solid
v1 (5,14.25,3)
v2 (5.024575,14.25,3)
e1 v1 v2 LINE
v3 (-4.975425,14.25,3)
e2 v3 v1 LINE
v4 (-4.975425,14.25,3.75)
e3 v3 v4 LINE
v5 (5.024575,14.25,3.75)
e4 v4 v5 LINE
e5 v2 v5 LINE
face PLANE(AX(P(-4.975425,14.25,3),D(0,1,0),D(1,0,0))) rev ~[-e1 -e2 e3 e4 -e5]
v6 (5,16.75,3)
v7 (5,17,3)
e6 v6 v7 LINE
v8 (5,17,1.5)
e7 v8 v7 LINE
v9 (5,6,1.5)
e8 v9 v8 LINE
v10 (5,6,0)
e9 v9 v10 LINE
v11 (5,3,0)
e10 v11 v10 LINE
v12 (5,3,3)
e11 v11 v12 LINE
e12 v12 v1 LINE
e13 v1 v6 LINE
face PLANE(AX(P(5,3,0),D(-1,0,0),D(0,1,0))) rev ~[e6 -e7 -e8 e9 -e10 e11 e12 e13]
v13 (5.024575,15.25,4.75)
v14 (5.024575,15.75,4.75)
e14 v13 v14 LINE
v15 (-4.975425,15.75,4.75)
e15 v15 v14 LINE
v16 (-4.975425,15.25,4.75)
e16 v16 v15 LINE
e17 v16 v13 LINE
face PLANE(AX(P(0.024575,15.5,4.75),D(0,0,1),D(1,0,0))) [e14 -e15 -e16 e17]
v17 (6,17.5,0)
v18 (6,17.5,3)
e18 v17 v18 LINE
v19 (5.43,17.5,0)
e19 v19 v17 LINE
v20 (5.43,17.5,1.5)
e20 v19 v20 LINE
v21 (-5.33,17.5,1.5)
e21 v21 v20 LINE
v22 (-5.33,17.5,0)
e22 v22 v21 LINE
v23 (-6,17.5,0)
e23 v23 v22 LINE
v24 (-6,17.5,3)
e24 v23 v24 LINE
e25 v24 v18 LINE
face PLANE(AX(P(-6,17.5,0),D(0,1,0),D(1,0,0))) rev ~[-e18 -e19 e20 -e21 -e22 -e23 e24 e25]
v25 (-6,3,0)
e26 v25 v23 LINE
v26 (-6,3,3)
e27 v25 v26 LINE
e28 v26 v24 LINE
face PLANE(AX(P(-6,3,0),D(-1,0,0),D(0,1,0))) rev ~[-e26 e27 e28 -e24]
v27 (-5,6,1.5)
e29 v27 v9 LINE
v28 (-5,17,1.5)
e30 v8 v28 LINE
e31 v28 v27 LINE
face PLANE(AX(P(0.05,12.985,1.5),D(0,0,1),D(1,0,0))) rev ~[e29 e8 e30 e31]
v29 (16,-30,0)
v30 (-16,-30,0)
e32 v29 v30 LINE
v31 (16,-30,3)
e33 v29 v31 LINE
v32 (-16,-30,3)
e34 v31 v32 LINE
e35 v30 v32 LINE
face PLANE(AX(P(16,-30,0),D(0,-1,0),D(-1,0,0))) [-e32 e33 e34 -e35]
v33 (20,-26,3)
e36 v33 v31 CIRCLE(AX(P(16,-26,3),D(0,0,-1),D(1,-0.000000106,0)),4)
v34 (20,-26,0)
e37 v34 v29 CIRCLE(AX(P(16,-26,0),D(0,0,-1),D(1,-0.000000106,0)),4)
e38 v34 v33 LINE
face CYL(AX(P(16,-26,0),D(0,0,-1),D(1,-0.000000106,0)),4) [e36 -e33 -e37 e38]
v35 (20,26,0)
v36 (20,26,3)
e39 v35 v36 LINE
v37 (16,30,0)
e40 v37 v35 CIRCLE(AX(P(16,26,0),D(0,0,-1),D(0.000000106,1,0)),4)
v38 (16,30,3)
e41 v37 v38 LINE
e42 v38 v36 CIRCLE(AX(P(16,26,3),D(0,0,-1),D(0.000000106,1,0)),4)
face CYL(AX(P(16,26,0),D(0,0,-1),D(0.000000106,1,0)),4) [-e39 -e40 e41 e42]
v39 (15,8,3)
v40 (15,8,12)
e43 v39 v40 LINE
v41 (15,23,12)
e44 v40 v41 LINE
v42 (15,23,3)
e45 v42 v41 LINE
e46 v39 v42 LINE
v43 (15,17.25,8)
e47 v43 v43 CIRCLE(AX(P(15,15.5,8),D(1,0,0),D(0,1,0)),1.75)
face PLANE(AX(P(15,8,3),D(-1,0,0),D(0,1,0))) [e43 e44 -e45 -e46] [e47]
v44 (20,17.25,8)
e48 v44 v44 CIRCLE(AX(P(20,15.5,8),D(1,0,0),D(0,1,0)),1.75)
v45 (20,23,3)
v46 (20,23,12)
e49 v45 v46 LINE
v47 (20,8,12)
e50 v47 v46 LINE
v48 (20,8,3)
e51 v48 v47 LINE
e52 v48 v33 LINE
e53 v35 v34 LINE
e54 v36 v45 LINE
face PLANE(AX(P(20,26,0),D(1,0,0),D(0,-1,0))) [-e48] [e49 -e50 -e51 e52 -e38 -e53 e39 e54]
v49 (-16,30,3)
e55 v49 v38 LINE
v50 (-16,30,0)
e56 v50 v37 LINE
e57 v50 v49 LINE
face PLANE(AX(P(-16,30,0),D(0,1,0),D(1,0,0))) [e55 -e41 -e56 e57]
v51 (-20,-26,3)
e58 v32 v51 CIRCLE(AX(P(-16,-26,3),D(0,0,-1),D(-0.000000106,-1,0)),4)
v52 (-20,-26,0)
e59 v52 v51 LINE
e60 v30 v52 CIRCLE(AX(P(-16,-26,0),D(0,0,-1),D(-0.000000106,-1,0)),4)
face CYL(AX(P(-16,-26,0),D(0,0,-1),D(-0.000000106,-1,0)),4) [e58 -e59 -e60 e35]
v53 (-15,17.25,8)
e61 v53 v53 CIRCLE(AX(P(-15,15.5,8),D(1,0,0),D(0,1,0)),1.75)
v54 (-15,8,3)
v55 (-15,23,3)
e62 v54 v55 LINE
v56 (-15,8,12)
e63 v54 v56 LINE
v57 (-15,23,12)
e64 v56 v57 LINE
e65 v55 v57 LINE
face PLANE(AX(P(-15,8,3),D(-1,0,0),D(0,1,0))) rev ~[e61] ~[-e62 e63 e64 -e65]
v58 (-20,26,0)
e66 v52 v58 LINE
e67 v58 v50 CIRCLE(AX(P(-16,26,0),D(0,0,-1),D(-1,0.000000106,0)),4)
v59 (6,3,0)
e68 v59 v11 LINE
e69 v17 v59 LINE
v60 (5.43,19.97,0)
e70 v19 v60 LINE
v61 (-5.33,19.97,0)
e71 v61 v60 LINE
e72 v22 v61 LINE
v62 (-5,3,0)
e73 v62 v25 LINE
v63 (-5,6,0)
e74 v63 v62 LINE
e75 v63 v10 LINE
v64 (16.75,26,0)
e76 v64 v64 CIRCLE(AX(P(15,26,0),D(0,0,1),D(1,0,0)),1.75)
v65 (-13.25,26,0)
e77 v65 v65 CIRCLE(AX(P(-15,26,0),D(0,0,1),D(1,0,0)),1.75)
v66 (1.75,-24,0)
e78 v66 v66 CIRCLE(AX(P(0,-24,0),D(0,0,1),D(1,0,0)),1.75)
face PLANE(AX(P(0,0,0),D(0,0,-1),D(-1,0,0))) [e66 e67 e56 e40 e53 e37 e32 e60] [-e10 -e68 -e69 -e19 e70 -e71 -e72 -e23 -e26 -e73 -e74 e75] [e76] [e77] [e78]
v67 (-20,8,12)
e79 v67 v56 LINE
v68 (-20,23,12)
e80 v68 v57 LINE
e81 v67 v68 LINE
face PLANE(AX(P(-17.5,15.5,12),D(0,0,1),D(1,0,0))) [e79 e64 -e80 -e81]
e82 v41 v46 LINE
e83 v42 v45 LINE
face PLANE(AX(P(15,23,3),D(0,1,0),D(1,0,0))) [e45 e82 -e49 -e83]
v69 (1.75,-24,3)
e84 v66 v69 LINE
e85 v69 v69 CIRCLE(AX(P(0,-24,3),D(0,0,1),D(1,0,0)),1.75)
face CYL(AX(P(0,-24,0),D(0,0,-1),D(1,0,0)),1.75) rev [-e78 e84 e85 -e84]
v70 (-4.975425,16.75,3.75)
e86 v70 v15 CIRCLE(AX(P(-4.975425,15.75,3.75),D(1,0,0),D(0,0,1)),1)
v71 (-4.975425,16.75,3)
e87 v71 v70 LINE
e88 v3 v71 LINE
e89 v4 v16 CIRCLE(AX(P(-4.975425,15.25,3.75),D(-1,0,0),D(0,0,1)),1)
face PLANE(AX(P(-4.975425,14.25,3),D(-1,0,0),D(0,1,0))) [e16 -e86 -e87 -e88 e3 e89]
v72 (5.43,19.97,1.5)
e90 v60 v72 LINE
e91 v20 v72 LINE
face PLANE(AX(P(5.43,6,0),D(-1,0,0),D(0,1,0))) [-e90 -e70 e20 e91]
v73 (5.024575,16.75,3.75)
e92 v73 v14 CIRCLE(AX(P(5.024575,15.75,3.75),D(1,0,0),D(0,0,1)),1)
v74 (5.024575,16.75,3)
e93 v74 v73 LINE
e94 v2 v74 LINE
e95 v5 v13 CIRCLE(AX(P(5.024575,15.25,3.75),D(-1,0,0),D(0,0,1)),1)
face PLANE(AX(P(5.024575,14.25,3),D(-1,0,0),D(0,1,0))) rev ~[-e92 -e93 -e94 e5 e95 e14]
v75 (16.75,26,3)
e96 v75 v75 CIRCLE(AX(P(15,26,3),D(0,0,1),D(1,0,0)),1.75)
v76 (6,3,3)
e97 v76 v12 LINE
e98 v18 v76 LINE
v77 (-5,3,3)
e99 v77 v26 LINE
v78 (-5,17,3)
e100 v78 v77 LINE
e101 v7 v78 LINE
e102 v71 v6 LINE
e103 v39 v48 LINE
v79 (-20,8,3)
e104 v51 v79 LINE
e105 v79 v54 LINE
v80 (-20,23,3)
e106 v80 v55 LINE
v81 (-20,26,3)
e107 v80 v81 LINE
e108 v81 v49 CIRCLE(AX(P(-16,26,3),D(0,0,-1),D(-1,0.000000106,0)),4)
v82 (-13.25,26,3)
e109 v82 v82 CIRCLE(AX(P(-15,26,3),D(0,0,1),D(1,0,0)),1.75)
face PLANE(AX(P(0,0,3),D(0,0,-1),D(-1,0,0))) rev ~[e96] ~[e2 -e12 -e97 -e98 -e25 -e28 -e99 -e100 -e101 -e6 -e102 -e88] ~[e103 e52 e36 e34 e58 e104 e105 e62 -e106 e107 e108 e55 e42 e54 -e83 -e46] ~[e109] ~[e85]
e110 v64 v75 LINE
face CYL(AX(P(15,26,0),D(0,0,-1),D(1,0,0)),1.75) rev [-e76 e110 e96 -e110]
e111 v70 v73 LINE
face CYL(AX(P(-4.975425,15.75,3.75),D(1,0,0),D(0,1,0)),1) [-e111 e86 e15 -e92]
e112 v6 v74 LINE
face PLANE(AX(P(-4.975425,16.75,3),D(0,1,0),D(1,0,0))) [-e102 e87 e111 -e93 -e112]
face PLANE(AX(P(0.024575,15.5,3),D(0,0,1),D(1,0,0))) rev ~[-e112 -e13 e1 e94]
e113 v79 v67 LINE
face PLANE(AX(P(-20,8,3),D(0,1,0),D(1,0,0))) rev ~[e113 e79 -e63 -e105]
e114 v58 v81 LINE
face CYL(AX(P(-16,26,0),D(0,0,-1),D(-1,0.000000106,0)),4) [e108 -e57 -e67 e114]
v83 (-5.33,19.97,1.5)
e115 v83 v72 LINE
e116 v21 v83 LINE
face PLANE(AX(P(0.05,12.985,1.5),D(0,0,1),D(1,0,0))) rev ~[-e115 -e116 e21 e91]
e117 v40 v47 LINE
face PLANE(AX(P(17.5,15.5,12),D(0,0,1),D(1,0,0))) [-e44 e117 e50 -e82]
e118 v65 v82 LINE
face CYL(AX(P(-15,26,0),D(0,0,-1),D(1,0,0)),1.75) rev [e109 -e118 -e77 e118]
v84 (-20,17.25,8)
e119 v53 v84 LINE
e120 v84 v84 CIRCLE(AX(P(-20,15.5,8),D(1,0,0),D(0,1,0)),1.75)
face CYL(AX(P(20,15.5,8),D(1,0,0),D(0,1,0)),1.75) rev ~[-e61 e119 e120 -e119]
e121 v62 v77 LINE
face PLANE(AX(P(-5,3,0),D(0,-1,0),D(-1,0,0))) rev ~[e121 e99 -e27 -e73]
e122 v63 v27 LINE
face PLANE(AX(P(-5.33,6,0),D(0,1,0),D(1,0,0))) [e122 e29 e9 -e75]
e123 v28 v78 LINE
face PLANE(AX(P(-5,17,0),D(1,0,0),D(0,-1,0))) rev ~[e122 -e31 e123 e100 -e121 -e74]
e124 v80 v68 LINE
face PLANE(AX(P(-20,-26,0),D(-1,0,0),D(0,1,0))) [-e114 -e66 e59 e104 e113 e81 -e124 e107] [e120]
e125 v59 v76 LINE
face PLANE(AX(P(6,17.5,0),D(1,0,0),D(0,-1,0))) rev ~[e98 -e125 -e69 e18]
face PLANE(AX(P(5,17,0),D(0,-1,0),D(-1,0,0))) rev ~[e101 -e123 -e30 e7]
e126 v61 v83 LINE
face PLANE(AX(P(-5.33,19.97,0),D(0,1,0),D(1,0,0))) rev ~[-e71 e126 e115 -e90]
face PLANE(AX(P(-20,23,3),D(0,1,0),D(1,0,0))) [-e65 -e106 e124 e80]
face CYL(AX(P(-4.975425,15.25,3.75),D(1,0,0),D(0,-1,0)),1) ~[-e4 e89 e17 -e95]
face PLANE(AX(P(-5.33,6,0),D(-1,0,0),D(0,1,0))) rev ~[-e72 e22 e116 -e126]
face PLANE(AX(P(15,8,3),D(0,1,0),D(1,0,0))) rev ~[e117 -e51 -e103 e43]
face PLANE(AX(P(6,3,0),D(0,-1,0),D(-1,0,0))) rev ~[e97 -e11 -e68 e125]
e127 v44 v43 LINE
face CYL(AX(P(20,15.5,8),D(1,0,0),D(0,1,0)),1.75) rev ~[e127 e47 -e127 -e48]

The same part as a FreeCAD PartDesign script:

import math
import FreeCAD as App
import Part
import Sketcher


def edges_at(feature, points):
    """Names of the edges that pass closest to the given points."""
    edges = feature.Shape.Edges
    near = lambda p: min(range(len(edges)), key=lambda i: edges[i].distToShape(Part.Vertex(*p))[0])
    return sorted({f"Edge{near(p) + 1}" for p in points})


def add_polygon(sketch, points):
    """Adds a closed chain of lines whose ends are joined by coincident constraints."""
    first, n = sketch.GeometryCount, len(points)
    for a, b in zip(points, points[1:] + points[:1]):
        sketch.addGeometry(Part.LineSegment(App.Vector(*a, 0), App.Vector(*b, 0)), False)
    for i in range(n):
        sketch.addConstraint(Sketcher.Constraint("Coincident", first + i, 2, first + (i + 1) % n, 1))

doc = App.newDocument("Part")
params = doc.addObject("Spreadsheet::Sheet", "Params")
for row, (alias, value) in enumerate([
    ("sketch1_radius", "4 mm"),
    ("sketch1_diameter", "3.5 mm"),
    ("sketch1_width", "32 mm"),
    ("sketch1_width2", "1 mm"),
    ("sketch1_width3", "10 mm"),
    ("pad1_length", "3 mm"),
    ("sketch2_width", "10.76 mm"),
    ("sketch2_height", "13.97 mm"),
    ("pocket1_length", "1.5 mm"),
    ("sketch3_width", "5 mm"),
    ("sketch3_height", "15 mm"),
    ("pad2_length", "9 mm"),
    ("sketch4_diameter", "3.5 mm"),
    ("pocket2_length", "50 mm"),
    ("sketch5_width", "10 mm"),
    ("sketch5_height", "2.5 mm"),
    ("pad3_length", "1.75 mm"),
    ("fillet_radius", "1 mm"),
], start=1):
    params.set(f"A{row}", alias)
    params.set(f"B{row}", "=" + value)
    params.setAlias(f"B{row}", alias)

body = doc.addObject("PartDesign::Body", "Body")

sketch1 = doc.addObject("Sketcher::SketchObject", "Sketch")
body.addObject(sketch1)
sketch1.AttachmentSupport = (doc.XY_Plane, [""])
sketch1.MapMode = "FlatFace"
sketch1.addGeometry(Part.LineSegment(App.Vector(-20, 26, 0), App.Vector(-20, -26, 0)), False)
sketch1.addGeometry(Part.ArcOfCircle(Part.Circle(App.Vector(-16, -26, 0), App.Vector(0, 0, 1), 4), math.radians(-180), math.radians(-90)), False)
sketch1.addGeometry(Part.LineSegment(App.Vector(-16, -30, 0), App.Vector(16, -30, 0)), False)
sketch1.addGeometry(Part.ArcOfCircle(Part.Circle(App.Vector(16, -26, 0), App.Vector(0, 0, 1), 4), math.radians(-90), math.radians(0)), False)
sketch1.addGeometry(Part.LineSegment(App.Vector(20, -26, 0), App.Vector(20, 26, 0)), False)
sketch1.addGeometry(Part.ArcOfCircle(Part.Circle(App.Vector(16, 26, 0), App.Vector(0, 0, 1), 4), math.radians(0), math.radians(90)), False)
sketch1.addGeometry(Part.LineSegment(App.Vector(16, 30, 0), App.Vector(-16, 30, 0)), False)
sketch1.addGeometry(Part.ArcOfCircle(Part.Circle(App.Vector(-16, 26, 0), App.Vector(0, 0, 1), 4), math.radians(90), math.radians(180)), False)
sketch1.addGeometry(Part.Circle(App.Vector(0, -24, 0), App.Vector(0, 0, 1), 1.8), False)
sketch1.addGeometry(Part.Circle(App.Vector(15, 26, 0), App.Vector(0, 0, 1), 1.8), False)
add_polygon(sketch1, [(6, 3), (5, 3), (5, 17), (-5, 17), (-5, 3), (-6, 3), (-6, 17.5), (6, 17.5)])
sketch1.addGeometry(Part.Circle(App.Vector(-15, 26, 0), App.Vector(0, 0, 1), 1.8), False)
sketch1.addConstraint([
    Sketcher.Constraint("Tangent", 0, 2, 1, 1),
    Sketcher.Constraint("Tangent", 1, 2, 2, 1),
    Sketcher.Constraint("Tangent", 2, 2, 3, 1),
    Sketcher.Constraint("Tangent", 3, 2, 4, 1),
    Sketcher.Constraint("Tangent", 4, 2, 5, 1),
    Sketcher.Constraint("Tangent", 5, 2, 6, 1),
    Sketcher.Constraint("Tangent", 6, 2, 7, 1),
    Sketcher.Constraint("Tangent", 7, 2, 0, 1),
    Sketcher.Constraint("Vertical", 0),
    Sketcher.Constraint("Horizontal", 2),
    Sketcher.Constraint("Vertical", 4),
    Sketcher.Constraint("Horizontal", 6),
    Sketcher.Constraint("Horizontal", 10),
    Sketcher.Constraint("Vertical", 11),
    Sketcher.Constraint("Horizontal", 12),
    Sketcher.Constraint("Vertical", 13),
    Sketcher.Constraint("Horizontal", 14),
    Sketcher.Constraint("Vertical", 15),
    Sketcher.Constraint("Horizontal", 16),
    Sketcher.Constraint("Vertical", 17),
    Sketcher.Constraint("Equal", 1, 3),
    Sketcher.Constraint("Equal", 3, 5),
    Sketcher.Constraint("Equal", 5, 7),
    Sketcher.Constraint("Equal", 8, 9),
    Sketcher.Constraint("Equal", 9, 18),
    Sketcher.Constraint("Symmetric", 1, 3, 5, 3, -1, 1),
    Sketcher.Constraint("Symmetric", 9, 3, 18, 3, -2),
    Sketcher.Constraint("Symmetric", 10, 2, 13, 2, -2),
    Sketcher.Constraint("PointOnObject", 8, 3, -2),
    Sketcher.Constraint("Horizontal", 7, 3, 9, 3),
    Sketcher.Constraint("Equal", 10, 14),
    Sketcher.Constraint("Radius", 1, 4.0),
    Sketcher.Constraint("Diameter", 8, 3.5),
    Sketcher.Constraint("DistanceX", 2, 1, 2, 2, 32.0),
    Sketcher.Constraint("DistanceX", 10, 2, 10, 1, 1.0),
    Sketcher.Constraint("DistanceX", 12, 2, 12, 1, 10.0),
    Sketcher.Constraint("DistanceY", 0, 2, 0, 1, 52.0),
    Sketcher.Constraint("DistanceY", 11, 1, 11, 2, 14.0),
    Sketcher.Constraint("DistanceY", 15, 1, 15, 2, 14.5),
    Sketcher.Constraint("DistanceY", 8, 3, -1, 1, 24.0),
    Sketcher.Constraint("DistanceX", -1, 1, 9, 3, 15.0),
    Sketcher.Constraint("DistanceY", -1, 1, 10, 2, 3.0),
])
sketch1.setExpression("Constraints[39]", "Params.sketch1_radius")
sketch1.setExpression("Constraints[40]", "Params.sketch1_diameter")
sketch1.setExpression("Constraints[41]", "Params.sketch1_width")
sketch1.setExpression("Constraints[42]", "Params.sketch1_width2")
sketch1.setExpression("Constraints[43]", "Params.sketch1_width3")
pad1 = doc.addObject("PartDesign::Pad", "Pad")
body.addObject(pad1)
pad1.Profile = sketch1
pad1.setExpression("Length", "Params.pad1_length")

sketch2 = doc.addObject("Sketcher::SketchObject", "Sketch001")
body.addObject(sketch2)
sketch2.AttachmentSupport = (doc.XY_Plane, [""])
sketch2.MapMode = "FlatFace"
add_polygon(sketch2, [(-5, 20), (-5, 6), (5, 6), (5, 20)])
sketch2.addConstraint([
    Sketcher.Constraint("Vertical", 0),
    Sketcher.Constraint("Horizontal", 1),
    Sketcher.Constraint("Vertical", 2),
    Sketcher.Constraint("Horizontal", 3),
    Sketcher.Constraint("DistanceY", -1, 1, 0, 2, 6.0),
    Sketcher.Constraint("DistanceX", 1, 1, 1, 2, 10.76),
    Sketcher.Constraint("DistanceY", 0, 2, 0, 1, 13.97),
    Sketcher.Constraint("DistanceX", 0, 2, -1, 1, 5.33),
])
sketch2.setExpression("Constraints[9]", "Params.sketch2_width")
sketch2.setExpression("Constraints[10]", "Params.sketch2_height")
pocket1 = doc.addObject("PartDesign::Pocket", "Pocket")
body.addObject(pocket1)
pocket1.Profile = sketch2
pocket1.setExpression("Length", "Params.pocket1_length")
pocket1.Reversed = True

sketch3 = doc.addObject("Sketcher::SketchObject", "Sketch002")
body.addObject(sketch3)
sketch3.AttachmentSupport = (doc.XY_Plane, [""])
sketch3.MapMode = "FlatFace"
sketch3.AttachmentOffset = App.Placement(App.Vector(0, 0, 3), App.Rotation())
add_polygon(sketch3, [(15, 23), (15, 8), (20, 8), (20, 23)])
add_polygon(sketch3, [(-20, 23), (-20, 8), (-15, 8), (-15, 23)])
sketch3.addConstraint([
    Sketcher.Constraint("Vertical", 0),
    Sketcher.Constraint("Horizontal", 1),
    Sketcher.Constraint("Vertical", 2),
    Sketcher.Constraint("Horizontal", 3),
    Sketcher.Constraint("Vertical", 4),
    Sketcher.Constraint("Horizontal", 5),
    Sketcher.Constraint("Vertical", 6),
    Sketcher.Constraint("Horizontal", 7),
    Sketcher.Constraint("Symmetric", 1, 2, 4, 2, -2),
    Sketcher.Constraint("Symmetric", 3, 2, 6, 2, -2),
    Sketcher.Constraint("DistanceX", 1, 1, 1, 2, 5.0),
    Sketcher.Constraint("DistanceY", 0, 2, 0, 1, 15.0),
    Sketcher.Constraint("DistanceX", -1, 1, 0, 2, 15.0),
    Sketcher.Constraint("DistanceY", -1, 1, 0, 2, 8.0),
])
sketch3.setExpression("Constraints[18]", "Params.sketch3_width")
sketch3.setExpression("Constraints[19]", "Params.sketch3_height")
pad2 = doc.addObject("PartDesign::Pad", "Pad001")
body.addObject(pad2)
pad2.Profile = sketch3
pad2.setExpression("Length", "Params.pad2_length")

sketch4 = doc.addObject("Sketcher::SketchObject", "Sketch003")
body.addObject(sketch4)
sketch4.AttachmentSupport = (doc.YZ_Plane, [""])
sketch4.MapMode = "FlatFace"
sketch4.AttachmentOffset = App.Placement(App.Vector(0, 0, 20), App.Rotation())
sketch4.addGeometry(Part.Circle(App.Vector(15.5, 8, 0), App.Vector(0, 0, 1), 1.8), False)
sketch4.addConstraint([
    Sketcher.Constraint("Diameter", 0, 3.5),
    Sketcher.Constraint("DistanceY", -1, 1, 0, 3, 8.0),
    Sketcher.Constraint("DistanceX", -1, 1, 0, 3, 15.5),
])
sketch4.setExpression("Constraints[0]", "Params.sketch4_diameter")
pocket2 = doc.addObject("PartDesign::Pocket", "Pocket001")
body.addObject(pocket2)
pocket2.Profile = sketch4
pocket2.setExpression("Length", "Params.pocket2_length")

sketch5 = doc.addObject("Sketcher::SketchObject", "Sketch004")
body.addObject(sketch5)
sketch5.AttachmentSupport = (doc.XY_Plane, [""])
sketch5.MapMode = "FlatFace"
sketch5.AttachmentOffset = App.Placement(App.Vector(0, 0, 3), App.Rotation())
add_polygon(sketch5, [(-5, 16.8), (-5, 14.2), (5, 14.2), (5, 16.8)])
sketch5.addConstraint([
    Sketcher.Constraint("Vertical", 0),
    Sketcher.Constraint("Horizontal", 1),
    Sketcher.Constraint("Vertical", 2),
    Sketcher.Constraint("Horizontal", 3),
    Sketcher.Constraint("DistanceX", 1, 1, 1, 2, 10.0),
    Sketcher.Constraint("DistanceY", 0, 2, 0, 1, 2.5),
    Sketcher.Constraint("DistanceY", -1, 1, 0, 2, 14.25),
    Sketcher.Constraint("DistanceX", 0, 2, -1, 1, 4.975425),
])
sketch5.setExpression("Constraints[8]", "Params.sketch5_width")
sketch5.setExpression("Constraints[9]", "Params.sketch5_height")
pad3 = doc.addObject("PartDesign::Pad", "Pad002")
body.addObject(pad3)
pad3.Profile = sketch5
pad3.setExpression("Length", "Params.pad3_length")
doc.recompute()

fillet = doc.addObject("PartDesign::Fillet", "Fillet")
body.addObject(fillet)
fillet.Base = (pad3, edges_at(pad3, [(0.025, 14.25, 4.75), (0.025, 16.75, 4.75)]))
fillet.setExpression("Radius", "Params.fillet_radius")

doc.recompute()
